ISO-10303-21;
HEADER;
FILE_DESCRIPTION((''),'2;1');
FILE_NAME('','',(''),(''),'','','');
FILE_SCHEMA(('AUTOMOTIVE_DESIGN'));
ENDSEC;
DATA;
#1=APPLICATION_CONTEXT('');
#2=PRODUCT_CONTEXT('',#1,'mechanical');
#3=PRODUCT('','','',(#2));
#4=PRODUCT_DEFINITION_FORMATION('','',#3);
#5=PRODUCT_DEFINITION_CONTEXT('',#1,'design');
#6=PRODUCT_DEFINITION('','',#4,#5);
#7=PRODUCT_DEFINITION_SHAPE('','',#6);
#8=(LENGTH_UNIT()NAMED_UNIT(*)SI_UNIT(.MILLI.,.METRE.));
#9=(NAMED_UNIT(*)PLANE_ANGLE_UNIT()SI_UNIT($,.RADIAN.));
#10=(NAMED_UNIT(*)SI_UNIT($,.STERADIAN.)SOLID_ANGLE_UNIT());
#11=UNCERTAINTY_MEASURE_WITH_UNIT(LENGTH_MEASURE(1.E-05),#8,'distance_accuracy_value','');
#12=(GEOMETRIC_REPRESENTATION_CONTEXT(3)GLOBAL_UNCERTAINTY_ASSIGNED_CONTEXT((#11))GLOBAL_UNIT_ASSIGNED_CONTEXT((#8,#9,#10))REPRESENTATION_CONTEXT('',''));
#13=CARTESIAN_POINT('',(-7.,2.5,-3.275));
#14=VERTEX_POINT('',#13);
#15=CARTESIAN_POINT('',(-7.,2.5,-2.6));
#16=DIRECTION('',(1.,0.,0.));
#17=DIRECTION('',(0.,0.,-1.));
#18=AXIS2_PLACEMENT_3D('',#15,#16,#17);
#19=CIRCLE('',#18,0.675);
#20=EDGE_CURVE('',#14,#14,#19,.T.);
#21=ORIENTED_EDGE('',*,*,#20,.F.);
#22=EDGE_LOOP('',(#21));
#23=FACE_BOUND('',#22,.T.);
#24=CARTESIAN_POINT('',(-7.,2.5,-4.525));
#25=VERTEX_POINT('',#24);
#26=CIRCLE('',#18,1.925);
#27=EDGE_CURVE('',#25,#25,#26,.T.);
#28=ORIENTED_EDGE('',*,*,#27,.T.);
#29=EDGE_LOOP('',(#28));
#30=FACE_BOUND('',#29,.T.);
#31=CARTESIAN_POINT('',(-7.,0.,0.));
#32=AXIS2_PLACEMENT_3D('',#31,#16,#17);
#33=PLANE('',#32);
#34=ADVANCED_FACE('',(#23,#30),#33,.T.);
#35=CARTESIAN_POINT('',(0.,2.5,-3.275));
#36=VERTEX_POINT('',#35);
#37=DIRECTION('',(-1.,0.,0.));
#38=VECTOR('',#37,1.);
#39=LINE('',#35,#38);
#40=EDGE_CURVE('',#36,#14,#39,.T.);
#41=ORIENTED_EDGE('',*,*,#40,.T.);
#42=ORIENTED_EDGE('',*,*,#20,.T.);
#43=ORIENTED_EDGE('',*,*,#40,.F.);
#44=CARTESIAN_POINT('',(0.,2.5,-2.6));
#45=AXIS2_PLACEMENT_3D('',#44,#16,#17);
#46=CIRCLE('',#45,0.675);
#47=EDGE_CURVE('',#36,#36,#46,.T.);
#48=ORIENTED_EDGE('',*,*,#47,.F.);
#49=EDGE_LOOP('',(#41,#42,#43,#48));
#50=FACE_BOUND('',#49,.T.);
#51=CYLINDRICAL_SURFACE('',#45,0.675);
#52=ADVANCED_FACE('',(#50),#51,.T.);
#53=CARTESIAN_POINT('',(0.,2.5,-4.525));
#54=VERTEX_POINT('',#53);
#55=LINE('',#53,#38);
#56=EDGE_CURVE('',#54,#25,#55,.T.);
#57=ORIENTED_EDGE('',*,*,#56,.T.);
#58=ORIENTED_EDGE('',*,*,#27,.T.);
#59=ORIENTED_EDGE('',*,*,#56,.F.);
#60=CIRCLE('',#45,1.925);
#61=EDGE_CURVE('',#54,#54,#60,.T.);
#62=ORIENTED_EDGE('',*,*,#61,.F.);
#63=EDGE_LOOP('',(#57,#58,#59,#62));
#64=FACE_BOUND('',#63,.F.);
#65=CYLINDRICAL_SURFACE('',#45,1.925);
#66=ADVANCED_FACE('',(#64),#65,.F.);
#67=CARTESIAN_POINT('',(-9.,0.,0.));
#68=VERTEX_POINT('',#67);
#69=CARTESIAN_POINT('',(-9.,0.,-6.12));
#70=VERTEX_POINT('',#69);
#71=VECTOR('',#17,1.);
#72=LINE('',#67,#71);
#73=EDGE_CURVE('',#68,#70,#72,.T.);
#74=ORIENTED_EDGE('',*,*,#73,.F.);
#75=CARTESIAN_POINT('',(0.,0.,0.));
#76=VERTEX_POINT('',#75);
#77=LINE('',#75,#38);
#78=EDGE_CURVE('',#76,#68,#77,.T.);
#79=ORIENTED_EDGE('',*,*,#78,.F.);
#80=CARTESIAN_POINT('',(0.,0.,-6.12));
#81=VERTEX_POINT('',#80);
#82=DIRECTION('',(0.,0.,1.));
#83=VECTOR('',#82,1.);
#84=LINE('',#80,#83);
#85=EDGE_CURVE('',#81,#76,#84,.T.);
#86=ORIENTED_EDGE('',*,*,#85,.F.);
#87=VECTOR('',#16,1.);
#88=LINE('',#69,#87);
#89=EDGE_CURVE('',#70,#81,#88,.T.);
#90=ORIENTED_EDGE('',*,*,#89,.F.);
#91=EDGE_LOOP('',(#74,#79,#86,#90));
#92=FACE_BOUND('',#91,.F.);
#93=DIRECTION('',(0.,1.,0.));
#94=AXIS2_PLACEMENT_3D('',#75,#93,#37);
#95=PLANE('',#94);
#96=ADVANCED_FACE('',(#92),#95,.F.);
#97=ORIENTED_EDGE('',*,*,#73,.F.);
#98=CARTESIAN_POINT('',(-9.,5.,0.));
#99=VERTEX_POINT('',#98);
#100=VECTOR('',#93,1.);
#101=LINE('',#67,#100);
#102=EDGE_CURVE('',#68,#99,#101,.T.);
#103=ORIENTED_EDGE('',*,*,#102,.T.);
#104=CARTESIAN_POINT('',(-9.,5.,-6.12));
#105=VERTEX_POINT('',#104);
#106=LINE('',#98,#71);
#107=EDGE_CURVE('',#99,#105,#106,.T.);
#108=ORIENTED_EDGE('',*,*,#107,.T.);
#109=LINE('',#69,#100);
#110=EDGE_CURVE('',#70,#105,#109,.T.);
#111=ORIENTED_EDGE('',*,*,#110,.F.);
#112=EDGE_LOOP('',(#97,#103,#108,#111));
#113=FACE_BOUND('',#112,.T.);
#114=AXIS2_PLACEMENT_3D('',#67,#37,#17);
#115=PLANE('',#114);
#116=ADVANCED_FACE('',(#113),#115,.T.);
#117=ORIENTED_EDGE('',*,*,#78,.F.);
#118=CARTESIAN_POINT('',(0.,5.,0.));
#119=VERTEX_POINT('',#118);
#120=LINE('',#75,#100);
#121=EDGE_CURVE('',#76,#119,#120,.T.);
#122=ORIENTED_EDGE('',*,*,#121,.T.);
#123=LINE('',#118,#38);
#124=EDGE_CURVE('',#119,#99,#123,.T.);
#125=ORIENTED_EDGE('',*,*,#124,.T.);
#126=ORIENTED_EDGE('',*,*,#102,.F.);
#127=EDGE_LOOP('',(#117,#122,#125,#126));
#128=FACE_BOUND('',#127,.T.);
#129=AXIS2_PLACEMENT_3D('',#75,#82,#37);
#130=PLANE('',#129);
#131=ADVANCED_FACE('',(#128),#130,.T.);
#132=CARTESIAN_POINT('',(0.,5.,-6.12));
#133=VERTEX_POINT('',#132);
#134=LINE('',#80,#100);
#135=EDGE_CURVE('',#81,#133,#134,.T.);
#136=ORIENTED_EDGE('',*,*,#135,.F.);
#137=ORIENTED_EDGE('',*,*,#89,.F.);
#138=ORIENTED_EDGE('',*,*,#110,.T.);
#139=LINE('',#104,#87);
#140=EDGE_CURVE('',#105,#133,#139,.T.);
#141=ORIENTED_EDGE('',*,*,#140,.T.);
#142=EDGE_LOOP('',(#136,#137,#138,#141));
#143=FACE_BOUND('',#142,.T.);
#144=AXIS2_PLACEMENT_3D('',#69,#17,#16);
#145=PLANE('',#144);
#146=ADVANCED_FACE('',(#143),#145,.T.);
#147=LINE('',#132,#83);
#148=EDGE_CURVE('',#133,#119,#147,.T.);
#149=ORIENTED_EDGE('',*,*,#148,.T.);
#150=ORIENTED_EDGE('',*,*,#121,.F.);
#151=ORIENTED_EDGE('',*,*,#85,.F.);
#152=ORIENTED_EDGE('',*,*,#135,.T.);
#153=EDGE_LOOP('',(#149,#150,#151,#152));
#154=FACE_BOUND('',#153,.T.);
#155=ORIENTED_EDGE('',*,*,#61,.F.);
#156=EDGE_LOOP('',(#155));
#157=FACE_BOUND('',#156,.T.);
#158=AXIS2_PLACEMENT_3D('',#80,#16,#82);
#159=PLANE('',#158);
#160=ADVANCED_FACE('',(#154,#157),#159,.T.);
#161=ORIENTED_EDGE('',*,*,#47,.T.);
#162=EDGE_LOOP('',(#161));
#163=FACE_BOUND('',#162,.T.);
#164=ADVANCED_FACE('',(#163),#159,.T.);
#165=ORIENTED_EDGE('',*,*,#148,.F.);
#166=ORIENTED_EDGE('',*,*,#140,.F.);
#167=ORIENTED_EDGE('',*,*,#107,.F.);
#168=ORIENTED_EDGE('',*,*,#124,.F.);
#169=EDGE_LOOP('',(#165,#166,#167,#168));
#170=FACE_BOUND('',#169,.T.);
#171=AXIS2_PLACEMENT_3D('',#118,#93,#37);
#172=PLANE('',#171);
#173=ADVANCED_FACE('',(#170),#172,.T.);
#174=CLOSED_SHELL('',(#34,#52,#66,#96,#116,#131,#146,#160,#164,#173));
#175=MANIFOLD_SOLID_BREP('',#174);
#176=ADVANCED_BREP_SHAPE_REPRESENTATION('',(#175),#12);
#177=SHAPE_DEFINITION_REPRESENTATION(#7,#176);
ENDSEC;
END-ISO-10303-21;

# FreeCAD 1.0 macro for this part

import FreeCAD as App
import Part
import Sketcher
from FreeCAD import Vector


def add_polygon(sketch, points):
    """Adds a closed chain of lines whose ends are joined by coincident constraints."""
    first, n = sketch.GeometryCount, len(points)
    for a, b in zip(points, points[1:] + points[:1]):
        sketch.addGeometry(Part.LineSegment(App.Vector(*a, 0), App.Vector(*b, 0)), False)
    for i in range(n):
        sketch.addConstraint(Sketcher.Constraint("Coincident", first + i, 2, first + (i + 1) % n, 1))

doc = App.newDocument("Part")
body = doc.addObject("PartDesign::Body", "Body")

# Sketch on XZ plane
sketch1 = doc.addObject("Sketcher::SketchObject", "Sketch")
body.addObject(sketch1)
sketch1.AttachmentSupport = (doc.XZ_Plane, [""])
sketch1.MapMode = "FlatFace"
add_polygon(sketch1, [(-9, 0), (0, 0), (0, -6), (-9, -6)])  # lines 0-3
sketch1.addConstraint([
    Sketcher.Constraint("Horizontal", 0),
    Sketcher.Constraint("Vertical", 1),
    Sketcher.Constraint("Horizontal", 2),
    Sketcher.Constraint("Vertical", 3),
    Sketcher.Constraint("Coincident", 0, 2, -1, 1),
    Sketcher.Constraint("DistanceX", 0, 1, 0, 2, 9.0),
    Sketcher.Constraint("DistanceY", 1, 2, 1, 1, 6.12),
])
pad1 = doc.addObject("PartDesign::Pad", "Pad")
body.addObject(pad1)
pad1.Profile = sketch1
pad1.Length = 5
pad1.Reversed = True

# Sketch on YZ plane
sketch2 = doc.addObject("Sketcher::SketchObject", "Sketch001")
body.addObject(sketch2)
sketch2.AttachmentSupport = (doc.YZ_Plane, [""])
sketch2.MapMode = "FlatFace"
sketch2.addGeometry([
    Part.Circle(Vector(2.5, -2.6, 0), Vector(0, 0, 1), 1.9),
    Part.Circle(Vector(2.5, -2.6, 0), Vector(0, 0, 1), 0.7),
], False)
sketch2.addConstraint([
    Sketcher.Constraint("Coincident", 1, 3, 0, 3),
    Sketcher.Constraint("Diameter", 0, 3.85),
    Sketcher.Constraint("Diameter", 1, 1.35),
    Sketcher.Constraint("DistanceX", -1, 1, 0, 3, 2.5),
    Sketcher.Constraint("DistanceY", 0, 3, -1, 1, 2.6),
])
pocket1 = doc.addObject("PartDesign::Pocket", "Pocket")
body.addObject(pocket1)
pocket1.Profile = sketch2
pocket1.Length = 7

doc.recompute()
